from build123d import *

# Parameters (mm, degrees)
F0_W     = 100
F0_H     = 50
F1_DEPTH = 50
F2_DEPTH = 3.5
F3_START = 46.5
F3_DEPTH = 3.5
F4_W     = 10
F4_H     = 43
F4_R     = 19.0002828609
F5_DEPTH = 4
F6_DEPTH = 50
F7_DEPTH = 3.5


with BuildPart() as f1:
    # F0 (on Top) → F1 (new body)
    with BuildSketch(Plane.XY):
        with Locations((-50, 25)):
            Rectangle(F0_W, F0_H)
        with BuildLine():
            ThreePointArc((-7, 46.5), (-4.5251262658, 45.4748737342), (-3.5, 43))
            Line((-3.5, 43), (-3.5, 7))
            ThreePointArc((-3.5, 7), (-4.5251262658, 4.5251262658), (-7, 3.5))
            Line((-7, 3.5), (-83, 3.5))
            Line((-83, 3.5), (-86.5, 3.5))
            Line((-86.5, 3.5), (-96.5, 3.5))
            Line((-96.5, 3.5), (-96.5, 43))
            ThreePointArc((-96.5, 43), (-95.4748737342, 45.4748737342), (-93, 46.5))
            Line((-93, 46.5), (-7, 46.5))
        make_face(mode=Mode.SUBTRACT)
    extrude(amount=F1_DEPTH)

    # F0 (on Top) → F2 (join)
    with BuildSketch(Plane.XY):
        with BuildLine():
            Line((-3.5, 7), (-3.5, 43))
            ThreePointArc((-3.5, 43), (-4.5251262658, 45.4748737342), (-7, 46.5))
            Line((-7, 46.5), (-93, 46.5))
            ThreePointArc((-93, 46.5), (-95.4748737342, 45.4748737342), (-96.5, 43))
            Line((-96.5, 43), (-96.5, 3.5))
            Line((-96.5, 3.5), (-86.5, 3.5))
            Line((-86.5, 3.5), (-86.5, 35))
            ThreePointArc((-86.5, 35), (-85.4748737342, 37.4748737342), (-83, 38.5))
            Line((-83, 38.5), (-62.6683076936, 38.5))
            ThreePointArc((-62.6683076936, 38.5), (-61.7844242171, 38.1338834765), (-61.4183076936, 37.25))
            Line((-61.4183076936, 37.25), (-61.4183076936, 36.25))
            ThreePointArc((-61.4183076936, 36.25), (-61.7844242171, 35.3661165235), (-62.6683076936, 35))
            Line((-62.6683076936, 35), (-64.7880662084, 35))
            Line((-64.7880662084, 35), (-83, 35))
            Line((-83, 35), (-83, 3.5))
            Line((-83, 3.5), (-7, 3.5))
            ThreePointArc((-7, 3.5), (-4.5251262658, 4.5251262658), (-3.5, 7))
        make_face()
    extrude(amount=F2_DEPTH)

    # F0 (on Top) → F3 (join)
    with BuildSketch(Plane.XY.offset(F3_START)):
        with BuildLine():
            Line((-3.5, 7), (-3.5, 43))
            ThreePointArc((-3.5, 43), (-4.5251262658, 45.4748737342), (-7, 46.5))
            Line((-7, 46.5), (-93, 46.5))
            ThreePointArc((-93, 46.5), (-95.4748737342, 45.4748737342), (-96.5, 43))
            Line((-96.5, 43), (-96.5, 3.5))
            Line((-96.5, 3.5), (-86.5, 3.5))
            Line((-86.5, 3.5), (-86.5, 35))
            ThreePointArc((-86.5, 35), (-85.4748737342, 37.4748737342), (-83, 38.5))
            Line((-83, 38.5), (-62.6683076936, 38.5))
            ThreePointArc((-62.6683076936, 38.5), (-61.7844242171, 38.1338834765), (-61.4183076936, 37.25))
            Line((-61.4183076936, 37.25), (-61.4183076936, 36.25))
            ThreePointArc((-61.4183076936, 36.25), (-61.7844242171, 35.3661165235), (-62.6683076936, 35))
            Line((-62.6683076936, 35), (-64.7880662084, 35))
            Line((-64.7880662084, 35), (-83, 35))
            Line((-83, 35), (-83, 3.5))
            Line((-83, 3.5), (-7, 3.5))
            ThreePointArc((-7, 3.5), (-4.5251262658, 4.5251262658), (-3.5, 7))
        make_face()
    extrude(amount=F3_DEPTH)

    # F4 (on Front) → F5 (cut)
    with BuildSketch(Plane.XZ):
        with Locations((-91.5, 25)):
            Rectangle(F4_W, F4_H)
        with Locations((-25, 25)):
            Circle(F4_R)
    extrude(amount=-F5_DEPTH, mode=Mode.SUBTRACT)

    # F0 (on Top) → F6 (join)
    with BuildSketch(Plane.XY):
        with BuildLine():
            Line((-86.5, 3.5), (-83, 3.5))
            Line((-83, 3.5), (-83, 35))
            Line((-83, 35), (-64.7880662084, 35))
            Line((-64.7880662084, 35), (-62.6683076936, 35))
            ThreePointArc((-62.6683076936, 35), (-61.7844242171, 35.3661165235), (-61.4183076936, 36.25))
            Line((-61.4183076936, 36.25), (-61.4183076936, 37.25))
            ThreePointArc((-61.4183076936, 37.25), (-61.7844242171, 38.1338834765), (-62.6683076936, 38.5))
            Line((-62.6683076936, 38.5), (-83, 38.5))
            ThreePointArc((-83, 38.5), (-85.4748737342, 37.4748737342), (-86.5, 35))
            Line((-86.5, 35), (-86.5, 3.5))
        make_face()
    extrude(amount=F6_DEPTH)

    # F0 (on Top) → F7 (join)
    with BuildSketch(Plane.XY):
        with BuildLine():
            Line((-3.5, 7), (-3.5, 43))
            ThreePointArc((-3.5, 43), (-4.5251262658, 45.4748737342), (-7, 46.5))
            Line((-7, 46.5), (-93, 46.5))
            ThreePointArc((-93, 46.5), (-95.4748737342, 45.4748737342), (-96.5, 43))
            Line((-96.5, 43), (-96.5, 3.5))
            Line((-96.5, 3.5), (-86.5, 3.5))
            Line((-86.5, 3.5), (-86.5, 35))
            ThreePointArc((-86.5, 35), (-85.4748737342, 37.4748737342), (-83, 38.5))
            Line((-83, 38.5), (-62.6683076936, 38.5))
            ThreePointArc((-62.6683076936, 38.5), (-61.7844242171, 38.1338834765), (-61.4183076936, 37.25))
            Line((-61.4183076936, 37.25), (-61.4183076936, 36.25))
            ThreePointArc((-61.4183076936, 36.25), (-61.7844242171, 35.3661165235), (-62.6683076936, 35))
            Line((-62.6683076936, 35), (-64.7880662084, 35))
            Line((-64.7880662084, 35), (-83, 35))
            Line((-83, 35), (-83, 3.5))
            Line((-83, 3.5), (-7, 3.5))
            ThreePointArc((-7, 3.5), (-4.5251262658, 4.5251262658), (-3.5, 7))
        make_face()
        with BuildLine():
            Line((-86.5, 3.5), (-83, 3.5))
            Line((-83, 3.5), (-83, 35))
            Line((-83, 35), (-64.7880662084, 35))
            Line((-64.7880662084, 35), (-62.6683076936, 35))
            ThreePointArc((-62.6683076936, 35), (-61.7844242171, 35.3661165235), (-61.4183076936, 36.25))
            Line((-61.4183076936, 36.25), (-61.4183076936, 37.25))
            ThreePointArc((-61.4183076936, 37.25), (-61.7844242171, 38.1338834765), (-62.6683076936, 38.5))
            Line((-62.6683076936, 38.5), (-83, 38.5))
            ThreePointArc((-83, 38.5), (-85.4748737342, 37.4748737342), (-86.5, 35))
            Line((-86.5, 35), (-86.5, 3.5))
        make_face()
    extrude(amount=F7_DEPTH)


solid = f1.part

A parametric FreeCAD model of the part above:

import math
import FreeCAD as App
import Part
import Sketcher

V = App.Vector

doc = App.newDocument("Part")
body = doc.addObject("PartDesign::Body", "Body")

# Sketch on XY plane
sketch1 = body.newObject("Sketcher::SketchObject", "Sketch")
sketch1.AttachmentSupport = (doc.getObject("XY_Plane"), [""])
sketch1.MapMode = "FlatFace"
sketch1.addGeometry([
    Part.LineSegment(V(-100, 50, 0), V(-100, 0, 0)),  # 0
    Part.LineSegment(V(-100, 0, 0), V(0, 0, 0)),  # 1
    Part.LineSegment(V(0, 0, 0), V(0, 50, 0)),  # 2
    Part.LineSegment(V(0, 50, 0), V(-100, 50, 0)),  # 3
    Part.LineSegment(V(-93, 46.5, 0), V(-7, 46.5, 0)),  # 4
    Part.ArcOfCircle(Part.Circle(V(-7, 43, 0), V(0, 0, 1), 3.5), math.radians(0), math.radians(90)),  # 5
    Part.LineSegment(V(-3.5, 43, 0), V(-3.5, 7, 0)),  # 6
    Part.ArcOfCircle(Part.Circle(V(-7, 7, 0), V(0, 0, 1), 3.5), math.radians(-90), math.radians(0)),  # 7
    Part.LineSegment(V(-7, 3.5, 0), V(-96.5, 3.5, 0)),  # 8
    Part.LineSegment(V(-96.5, 3.5, 0), V(-96.5, 43, 0)),  # 9
    Part.ArcOfCircle(Part.Circle(V(-93, 43, 0), V(0, 0, 1), 3.5), math.radians(90), math.radians(180)),  # 10
], False)
sketch1.addConstraint([
    Sketcher.Constraint("Coincident", 0, 2, 1, 1),
    Sketcher.Constraint("Coincident", 1, 2, 2, 1),
    Sketcher.Constraint("Coincident", 2, 2, 3, 1),
    Sketcher.Constraint("Coincident", 3, 2, 0, 1),
    Sketcher.Constraint("Tangent", 4, 2, 5, 2),
    Sketcher.Constraint("Tangent", 5, 1, 6, 1),
    Sketcher.Constraint("Tangent", 6, 2, 7, 2),
    Sketcher.Constraint("Tangent", 7, 1, 8, 1),
    Sketcher.Constraint("Coincident", 8, 2, 9, 1),
    Sketcher.Constraint("Tangent", 9, 2, 10, 2),
    Sketcher.Constraint("Tangent", 10, 1, 4, 1),
    Sketcher.Constraint("Vertical", 0),
    Sketcher.Constraint("Horizontal", 1),
    Sketcher.Constraint("Vertical", 2),
    Sketcher.Constraint("Horizontal", 3),
    Sketcher.Constraint("Horizontal", 4),
    Sketcher.Constraint("Vertical", 6),
    Sketcher.Constraint("Horizontal", 8),
    Sketcher.Constraint("Vertical", 9),
    Sketcher.Constraint("Coincident", 1, 2, -1, 1),
    Sketcher.Constraint("Equal", 5, 7),
    Sketcher.Constraint("Equal", 7, 10),
    Sketcher.Constraint("Radius", 5, 3.5),
    Sketcher.Constraint("DistanceX", 1, 1, 1, 2, 100.0),
    Sketcher.Constraint("DistanceX", 4, 1, 4, 2, 86.0),
    Sketcher.Constraint("DistanceY", 0, 2, 0, 1, 50.0),
    Sketcher.Constraint("DistanceY", 6, 2, 6, 1, 36.0),
    Sketcher.Constraint("DistanceX", 5, 3, -1, 1, 7.0),
    Sketcher.Constraint("DistanceY", -1, 1, 5, 3, 43.0),
])
pad1 = body.newObject("PartDesign::Pad", "Pad")
pad1.Profile = sketch1
pad1.Length = 50

# Sketch on XY plane
sketch2 = body.newObject("Sketcher::SketchObject", "Sketch001")
sketch2.AttachmentSupport = (doc.getObject("XY_Plane"), [""])
sketch2.MapMode = "FlatFace"
sketch2.addGeometry([
    Part.LineSegment(V(-3.5, 7, 0), V(-3.5, 43, 0)),  # 0
    Part.ArcOfCircle(Part.Circle(V(-7, 43, 0), V(0, 0, 1), 3.5), math.radians(0), math.radians(90)),  # 1
    Part.LineSegment(V(-7, 46.5, 0), V(-93, 46.5, 0)),  # 2
    Part.ArcOfCircle(Part.Circle(V(-93, 43, 0), V(0, 0, 1), 3.5), math.radians(90), math.radians(180)),  # 3
    Part.LineSegment(V(-96.5, 43, 0), V(-96.5, 3.5, 0)),  # 4
    Part.LineSegment(V(-96.5, 3.5, 0), V(-86.5, 3.5, 0)),  # 5
    Part.LineSegment(V(-86.5, 3.5, 0), V(-86.5, 35, 0)),  # 6
    Part.ArcOfCircle(Part.Circle(V(-83, 35, 0), V(0, 0, 1), 3.5), math.radians(90), math.radians(180)),  # 7
    Part.LineSegment(V(-83, 38.5, 0), V(-62.668308, 38.5, 0)),  # 8
    Part.ArcOfCircle(Part.Circle(V(-62.668308, 37.25, 0), V(0, 0, 1), 1.25), math.radians(0), math.radians(90)),  # 9
    Part.LineSegment(V(-61.418308, 37.25, 0), V(-61.418308, 36.25, 0)),  # 10
    Part.ArcOfCircle(Part.Circle(V(-62.668308, 36.25, 0), V(0, 0, 1), 1.25), math.radians(-90), math.radians(0)),  # 11
    Part.LineSegment(V(-62.668308, 35, 0), V(-83, 35, 0)),  # 12
    Part.LineSegment(V(-83, 35, 0), V(-83, 3.5, 0)),  # 13
    Part.LineSegment(V(-83, 3.5, 0), V(-7, 3.5, 0)),  # 14
    Part.ArcOfCircle(Part.Circle(V(-7, 7, 0), V(0, 0, 1), 3.5), math.radians(-90), math.radians(0)),  # 15
], False)
sketch2.addConstraint([
    Sketcher.Constraint("Tangent", 0, 2, 1, 1),
    Sketcher.Constraint("Tangent", 1, 2, 2, 1),
    Sketcher.Constraint("Tangent", 2, 2, 3, 1),
    Sketcher.Constraint("Tangent", 3, 2, 4, 1),
    Sketcher.Constraint("Coincident", 4, 2, 5, 1),
    Sketcher.Constraint("Coincident", 5, 2, 6, 1),
    Sketcher.Constraint("Tangent", 6, 2, 7, 2),
    Sketcher.Constraint("Tangent", 7, 1, 8, 1),
    Sketcher.Constraint("Tangent", 8, 2, 9, 2),
    Sketcher.Constraint("Tangent", 9, 1, 10, 1),
    Sketcher.Constraint("Tangent", 10, 2, 11, 2),
    Sketcher.Constraint("Tangent", 11, 1, 12, 1),
    Sketcher.Constraint("Coincident", 12, 2, 13, 1),
    Sketcher.Constraint("Coincident", 13, 2, 14, 1),
    Sketcher.Constraint("Tangent", 14, 2, 15, 1),
    Sketcher.Constraint("Tangent", 15, 2, 0, 1),
    Sketcher.Constraint("Vertical", 0),
    Sketcher.Constraint("Horizontal", 2),
    Sketcher.Constraint("Vertical", 4),
    Sketcher.Constraint("Horizontal", 5),
    Sketcher.Constraint("Vertical", 6),
    Sketcher.Constraint("Horizontal", 8),
    Sketcher.Constraint("Vertical", 10),
    Sketcher.Constraint("Horizontal", 12),
    Sketcher.Constraint("Vertical", 13),
    Sketcher.Constraint("Horizontal", 14),
    Sketcher.Constraint("Coincident", 12, 2, 7, 3),
    Sketcher.Constraint("Equal", 1, 3),
    Sketcher.Constraint("Equal", 3, 7),
    Sketcher.Constraint("Equal", 9, 11),
    Sketcher.Constraint("Equal", 7, 15),
    Sketcher.Constraint("Horizontal", 5, 2, 13, 2),
    Sketcher.Constraint("Radius", 1, 3.5),
    Sketcher.Constraint("DistanceX", 2, 2, 2, 1, 86.0),
    Sketcher.Constraint("DistanceX", 5, 1, 5, 2, 10.0),
    Sketcher.Constraint("DistanceY", 0, 1, 0, 2, 36.0),
    Sketcher.Constraint("DistanceY", 10, 2, 10, 1, 1.0),
    Sketcher.Constraint("DistanceY", 6, 1, 6, 2, 31.5),
    Sketcher.Constraint("DistanceX", 1, 3, -1, 1, 7.0),
    Sketcher.Constraint("DistanceY", -1, 1, 1, 3, 43.0),
    Sketcher.Constraint("DistanceX", 8, 1, 8, 2, 20.331692),
])
pad2 = body.newObject("PartDesign::Pad", "Pad001")
pad2.Profile = sketch2
pad2.Length = 3.5

# Sketch on XY plane
sketch3 = body.newObject("Sketcher::SketchObject", "Sketch002")
sketch3.AttachmentSupport = (doc.getObject("XY_Plane"), [""])
sketch3.MapMode = "FlatFace"
sketch3.AttachmentOffset = App.Placement(V(0, 0, 46.5), App.Rotation())
sketch3.addGeometry([
    Part.LineSegment(V(-3.5, 7, 0), V(-3.5, 43, 0)),  # 0
    Part.ArcOfCircle(Part.Circle(V(-7, 43, 0), V(0, 0, 1), 3.5), math.radians(0), math.radians(90)),  # 1
    Part.LineSegment(V(-7, 46.5, 0), V(-93, 46.5, 0)),  # 2
    Part.ArcOfCircle(Part.Circle(V(-93, 43, 0), V(0, 0, 1), 3.5), math.radians(90), math.radians(180)),  # 3
    Part.LineSegment(V(-96.5, 43, 0), V(-96.5, 3.5, 0)),  # 4
    Part.LineSegment(V(-96.5, 3.5, 0), V(-86.5, 3.5, 0)),  # 5
    Part.LineSegment(V(-86.5, 3.5, 0), V(-86.5, 35, 0)),  # 6
    Part.ArcOfCircle(Part.Circle(V(-83, 35, 0), V(0, 0, 1), 3.5), math.radians(90), math.radians(180)),  # 7
    Part.LineSegment(V(-83, 38.5, 0), V(-62.668308, 38.5, 0)),  # 8
    Part.ArcOfCircle(Part.Circle(V(-62.668308, 37.25, 0), V(0, 0, 1), 1.25), math.radians(0), math.radians(90)),  # 9
    Part.LineSegment(V(-61.418308, 37.25, 0), V(-61.418308, 36.25, 0)),  # 10
    Part.ArcOfCircle(Part.Circle(V(-62.668308, 36.25, 0), V(0, 0, 1), 1.25), math.radians(-90), math.radians(0)),  # 11
    Part.LineSegment(V(-62.668308, 35, 0), V(-83, 35, 0)),  # 12
    Part.LineSegment(V(-83, 35, 0), V(-83, 3.5, 0)),  # 13
    Part.LineSegment(V(-83, 3.5, 0), V(-7, 3.5, 0)),  # 14
    Part.ArcOfCircle(Part.Circle(V(-7, 7, 0), V(0, 0, 1), 3.5), math.radians(-90), math.radians(0)),  # 15
], False)
sketch3.addConstraint([
    Sketcher.Constraint("Tangent", 0, 2, 1, 1),
    Sketcher.Constraint("Tangent", 1, 2, 2, 1),
    Sketcher.Constraint("Tangent", 2, 2, 3, 1),
    Sketcher.Constraint("Tangent", 3, 2, 4, 1),
    Sketcher.Constraint("Coincident", 4, 2, 5, 1),
    Sketcher.Constraint("Coincident", 5, 2, 6, 1),
    Sketcher.Constraint("Tangent", 6, 2, 7, 2),
    Sketcher.Constraint("Tangent", 7, 1, 8, 1),
    Sketcher.Constraint("Tangent", 8, 2, 9, 2),
    Sketcher.Constraint("Tangent", 9, 1, 10, 1),
    Sketcher.Constraint("Tangent", 10, 2, 11, 2),
    Sketcher.Constraint("Tangent", 11, 1, 12, 1),
    Sketcher.Constraint("Coincident", 12, 2, 13, 1),
    Sketcher.Constraint("Coincident", 13, 2, 14, 1),
    Sketcher.Constraint("Tangent", 14, 2, 15, 1),
    Sketcher.Constraint("Tangent", 15, 2, 0, 1),
    Sketcher.Constraint("Vertical", 0),
    Sketcher.Constraint("Horizontal", 2),
    Sketcher.Constraint("Vertical", 4),
    Sketcher.Constraint("Horizontal", 5),
    Sketcher.Constraint("Vertical", 6),
    Sketcher.Constraint("Horizontal", 8),
    Sketcher.Constraint("Vertical", 10),
    Sketcher.Constraint("Horizontal", 12),
    Sketcher.Constraint("Vertical", 13),
    Sketcher.Constraint("Horizontal", 14),
    Sketcher.Constraint("Coincident", 12, 2, 7, 3),
    Sketcher.Constraint("Equal", 1, 3),
    Sketcher.Constraint("Equal", 3, 7),
    Sketcher.Constraint("Equal", 9, 11),
    Sketcher.Constraint("Equal", 7, 15),
    Sketcher.Constraint("Horizontal", 5, 2, 13, 2),
    Sketcher.Constraint("Radius", 1, 3.5),
    Sketcher.Constraint("DistanceX", 2, 2, 2, 1, 86.0),
    Sketcher.Constraint("DistanceX", 5, 1, 5, 2, 10.0),
    Sketcher.Constraint("DistanceY", 0, 1, 0, 2, 36.0),
    Sketcher.Constraint("DistanceY", 10, 2, 10, 1, 1.0),
    Sketcher.Constraint("DistanceY", 6, 1, 6, 2, 31.5),
    Sketcher.Constraint("DistanceX", 1, 3, -1, 1, 7.0),
    Sketcher.Constraint("DistanceY", -1, 1, 1, 3, 43.0),
    Sketcher.Constraint("DistanceX", 8, 1, 8, 2, 20.331692),
])
pad3 = body.newObject("PartDesign::Pad", "Pad002")
pad3.Profile = sketch3
pad3.Length = 3.5

# Sketch on XZ plane
sketch4 = body.newObject("Sketcher::SketchObject", "Sketch003")
sketch4.AttachmentSupport = (doc.getObject("XZ_Plane"), [""])
sketch4.MapMode = "FlatFace"
sketch4.addGeometry([
    Part.LineSegment(V(-96.5, 46.5, 0), V(-96.5, 3.5, 0)),  # 0
    Part.LineSegment(V(-96.5, 3.5, 0), V(-86.5, 3.5, 0)),  # 1
    Part.LineSegment(V(-86.5, 3.5, 0), V(-86.5, 46.5, 0)),  # 2
    Part.LineSegment(V(-86.5, 46.5, 0), V(-96.5, 46.5, 0)),  # 3
    Part.Circle(V(-25, 25, 0), V(0, 0, 1), 19.000283),  # 4
], False)
sketch4.addConstraint([
    Sketcher.Constraint("Coincident", 0, 2, 1, 1),
    Sketcher.Constraint("Coincident", 1, 2, 2, 1),
    Sketcher.Constraint("Coincident", 2, 2, 3, 1),
    Sketcher.Constraint("Coincident", 3, 2, 0, 1),
    Sketcher.Constraint("Vertical", 0),
    Sketcher.Constraint("Horizontal", 1),
    Sketcher.Constraint("Vertical", 2),
    Sketcher.Constraint("Horizontal", 3),
    Sketcher.Constraint("DistanceX", 1, 1, 1, 2, 10.0),
    Sketcher.Constraint("DistanceY", 0, 2, 0, 1, 43.0),
    Sketcher.Constraint("DistanceX", 4, 3, -1, 1, 25.0),
    Sketcher.Constraint("DistanceY", -1, 1, 4, 3, 25.0),
    Sketcher.Constraint("DistanceX", 0, 2, -1, 1, 96.5),
    Sketcher.Constraint("DistanceY", -1, 1, 0, 2, 3.5),
    Sketcher.Constraint("Diameter", 4, 38.000566),
])
pocket1 = body.newObject("PartDesign::Pocket", "Pocket")
pocket1.Profile = sketch4
pocket1.Length = 4

# Sketch on XY plane
sketch5 = body.newObject("Sketcher::SketchObject", "Sketch004")
sketch5.AttachmentSupport = (doc.getObject("XY_Plane"), [""])
sketch5.MapMode = "FlatFace"
sketch5.addGeometry([
    Part.LineSegment(V(-86.5, 3.5, 0), V(-83, 3.5, 0)),  # 0
    Part.LineSegment(V(-83, 3.5, 0), V(-83, 35, 0)),  # 1
    Part.LineSegment(V(-83, 35, 0), V(-62.668308, 35, 0)),  # 2
    Part.ArcOfCircle(Part.Circle(V(-62.668308, 36.25, 0), V(0, 0, 1), 1.25), math.radians(-90), math.radians(0)),  # 3
    Part.LineSegment(V(-61.418308, 36.25, 0), V(-61.418308, 37.25, 0)),  # 4
    Part.ArcOfCircle(Part.Circle(V(-62.668308, 37.25, 0), V(0, 0, 1), 1.25), math.radians(0), math.radians(90)),  # 5
    Part.LineSegment(V(-62.668308, 38.5, 0), V(-83, 38.5, 0)),  # 6
    Part.ArcOfCircle(Part.Circle(V(-83, 35, 0), V(0, 0, 1), 3.5), math.radians(90), math.radians(180)),  # 7
    Part.LineSegment(V(-86.5, 35, 0), V(-86.5, 3.5, 0)),  # 8
], False)
sketch5.addConstraint([
    Sketcher.Constraint("Coincident", 0, 2, 1, 1),
    Sketcher.Constraint("Coincident", 1, 2, 2, 1),
    Sketcher.Constraint("Tangent", 2, 2, 3, 1),
    Sketcher.Constraint("Tangent", 3, 2, 4, 1),
    Sketcher.Constraint("Tangent", 4, 2, 5, 1),
    Sketcher.Constraint("Tangent", 5, 2, 6, 1),
    Sketcher.Constraint("Tangent", 6, 2, 7, 1),
    Sketcher.Constraint("Tangent", 7, 2, 8, 1),
    Sketcher.Constraint("Coincident", 8, 2, 0, 1),
    Sketcher.Constraint("Horizontal", 0),
    Sketcher.Constraint("Vertical", 1),
    Sketcher.Constraint("Horizontal", 2),
    Sketcher.Constraint("Vertical", 4),
    Sketcher.Constraint("Horizontal", 6),
    Sketcher.Constraint("Vertical", 8),
    Sketcher.Constraint("Coincident", 1, 2, 7, 3),
    Sketcher.Constraint("Equal", 3, 5),
    Sketcher.Constraint("Radius", 7, 3.5),
    Sketcher.Constraint("DistanceY", 4, 1, 4, 2, 1.0),
    Sketcher.Constraint("DistanceY", 1, 1, 1, 2, 31.5),
    Sketcher.Constraint("DistanceX", 7, 3, -1, 1, 83.0),
    Sketcher.Constraint("DistanceY", -1, 1, 7, 3, 35.0),
    Sketcher.Constraint("DistanceX", 2, 1, 2, 2, 20.331692),
])
pad4 = body.newObject("PartDesign::Pad", "Pad003")
pad4.Profile = sketch5
pad4.Length = 50

# Sketch on XY plane
sketch6 = body.newObject("Sketcher::SketchObject", "Sketch005")
sketch6.AttachmentSupport = (doc.getObject("XY_Plane"), [""])
sketch6.MapMode = "FlatFace"
sketch6.addGeometry([
    Part.LineSegment(V(-3.5, 7, 0), V(-3.5, 43, 0)),  # 0
    Part.ArcOfCircle(Part.Circle(V(-7, 43, 0), V(0, 0, 1), 3.5), math.radians(0), math.radians(90)),  # 1
    Part.LineSegment(V(-7, 46.5, 0), V(-93, 46.5, 0)),  # 2
    Part.ArcOfCircle(Part.Circle(V(-93, 43, 0), V(0, 0, 1), 3.5), math.radians(90), math.radians(180)),  # 3
    Part.LineSegment(V(-96.5, 43, 0), V(-96.5, 3.5, 0)),  # 4
    Part.LineSegment(V(-96.5, 3.5, 0), V(-7, 3.5, 0)),  # 5
    Part.ArcOfCircle(Part.Circle(V(-7, 7, 0), V(0, 0, 1), 3.5), math.radians(-90), math.radians(0)),  # 6
], False)
sketch6.addConstraint([
    Sketcher.Constraint("Tangent", 0, 2, 1, 1),
    Sketcher.Constraint("Tangent", 1, 2, 2, 1),
    Sketcher.Constraint("Tangent", 2, 2, 3, 1),
    Sketcher.Constraint("Tangent", 3, 2, 4, 1),
    Sketcher.Constraint("Coincident", 4, 2, 5, 1),
    Sketcher.Constraint("Tangent", 5, 2, 6, 1),
    Sketcher.Constraint("Tangent", 6, 2, 0, 1),
    Sketcher.Constraint("Vertical", 0),
    Sketcher.Constraint("Horizontal", 2),
    Sketcher.Constraint("Vertical", 4),
    Sketcher.Constraint("Horizontal", 5),
    Sketcher.Constraint("Equal", 1, 3),
    Sketcher.Constraint("Equal", 3, 6),
    Sketcher.Constraint("Radius", 1, 3.5),
    Sketcher.Constraint("DistanceX", 2, 2, 2, 1, 86.0),
    Sketcher.Constraint("DistanceY", 0, 1, 0, 2, 36.0),
    Sketcher.Constraint("DistanceX", 1, 3, -1, 1, 7.0),
    Sketcher.Constraint("DistanceY", -1, 1, 1, 3, 43.0),
])
pad5 = body.newObject("PartDesign::Pad", "Pad004")
pad5.Profile = sketch6
pad5.Length = 3.5

doc.recompute()
